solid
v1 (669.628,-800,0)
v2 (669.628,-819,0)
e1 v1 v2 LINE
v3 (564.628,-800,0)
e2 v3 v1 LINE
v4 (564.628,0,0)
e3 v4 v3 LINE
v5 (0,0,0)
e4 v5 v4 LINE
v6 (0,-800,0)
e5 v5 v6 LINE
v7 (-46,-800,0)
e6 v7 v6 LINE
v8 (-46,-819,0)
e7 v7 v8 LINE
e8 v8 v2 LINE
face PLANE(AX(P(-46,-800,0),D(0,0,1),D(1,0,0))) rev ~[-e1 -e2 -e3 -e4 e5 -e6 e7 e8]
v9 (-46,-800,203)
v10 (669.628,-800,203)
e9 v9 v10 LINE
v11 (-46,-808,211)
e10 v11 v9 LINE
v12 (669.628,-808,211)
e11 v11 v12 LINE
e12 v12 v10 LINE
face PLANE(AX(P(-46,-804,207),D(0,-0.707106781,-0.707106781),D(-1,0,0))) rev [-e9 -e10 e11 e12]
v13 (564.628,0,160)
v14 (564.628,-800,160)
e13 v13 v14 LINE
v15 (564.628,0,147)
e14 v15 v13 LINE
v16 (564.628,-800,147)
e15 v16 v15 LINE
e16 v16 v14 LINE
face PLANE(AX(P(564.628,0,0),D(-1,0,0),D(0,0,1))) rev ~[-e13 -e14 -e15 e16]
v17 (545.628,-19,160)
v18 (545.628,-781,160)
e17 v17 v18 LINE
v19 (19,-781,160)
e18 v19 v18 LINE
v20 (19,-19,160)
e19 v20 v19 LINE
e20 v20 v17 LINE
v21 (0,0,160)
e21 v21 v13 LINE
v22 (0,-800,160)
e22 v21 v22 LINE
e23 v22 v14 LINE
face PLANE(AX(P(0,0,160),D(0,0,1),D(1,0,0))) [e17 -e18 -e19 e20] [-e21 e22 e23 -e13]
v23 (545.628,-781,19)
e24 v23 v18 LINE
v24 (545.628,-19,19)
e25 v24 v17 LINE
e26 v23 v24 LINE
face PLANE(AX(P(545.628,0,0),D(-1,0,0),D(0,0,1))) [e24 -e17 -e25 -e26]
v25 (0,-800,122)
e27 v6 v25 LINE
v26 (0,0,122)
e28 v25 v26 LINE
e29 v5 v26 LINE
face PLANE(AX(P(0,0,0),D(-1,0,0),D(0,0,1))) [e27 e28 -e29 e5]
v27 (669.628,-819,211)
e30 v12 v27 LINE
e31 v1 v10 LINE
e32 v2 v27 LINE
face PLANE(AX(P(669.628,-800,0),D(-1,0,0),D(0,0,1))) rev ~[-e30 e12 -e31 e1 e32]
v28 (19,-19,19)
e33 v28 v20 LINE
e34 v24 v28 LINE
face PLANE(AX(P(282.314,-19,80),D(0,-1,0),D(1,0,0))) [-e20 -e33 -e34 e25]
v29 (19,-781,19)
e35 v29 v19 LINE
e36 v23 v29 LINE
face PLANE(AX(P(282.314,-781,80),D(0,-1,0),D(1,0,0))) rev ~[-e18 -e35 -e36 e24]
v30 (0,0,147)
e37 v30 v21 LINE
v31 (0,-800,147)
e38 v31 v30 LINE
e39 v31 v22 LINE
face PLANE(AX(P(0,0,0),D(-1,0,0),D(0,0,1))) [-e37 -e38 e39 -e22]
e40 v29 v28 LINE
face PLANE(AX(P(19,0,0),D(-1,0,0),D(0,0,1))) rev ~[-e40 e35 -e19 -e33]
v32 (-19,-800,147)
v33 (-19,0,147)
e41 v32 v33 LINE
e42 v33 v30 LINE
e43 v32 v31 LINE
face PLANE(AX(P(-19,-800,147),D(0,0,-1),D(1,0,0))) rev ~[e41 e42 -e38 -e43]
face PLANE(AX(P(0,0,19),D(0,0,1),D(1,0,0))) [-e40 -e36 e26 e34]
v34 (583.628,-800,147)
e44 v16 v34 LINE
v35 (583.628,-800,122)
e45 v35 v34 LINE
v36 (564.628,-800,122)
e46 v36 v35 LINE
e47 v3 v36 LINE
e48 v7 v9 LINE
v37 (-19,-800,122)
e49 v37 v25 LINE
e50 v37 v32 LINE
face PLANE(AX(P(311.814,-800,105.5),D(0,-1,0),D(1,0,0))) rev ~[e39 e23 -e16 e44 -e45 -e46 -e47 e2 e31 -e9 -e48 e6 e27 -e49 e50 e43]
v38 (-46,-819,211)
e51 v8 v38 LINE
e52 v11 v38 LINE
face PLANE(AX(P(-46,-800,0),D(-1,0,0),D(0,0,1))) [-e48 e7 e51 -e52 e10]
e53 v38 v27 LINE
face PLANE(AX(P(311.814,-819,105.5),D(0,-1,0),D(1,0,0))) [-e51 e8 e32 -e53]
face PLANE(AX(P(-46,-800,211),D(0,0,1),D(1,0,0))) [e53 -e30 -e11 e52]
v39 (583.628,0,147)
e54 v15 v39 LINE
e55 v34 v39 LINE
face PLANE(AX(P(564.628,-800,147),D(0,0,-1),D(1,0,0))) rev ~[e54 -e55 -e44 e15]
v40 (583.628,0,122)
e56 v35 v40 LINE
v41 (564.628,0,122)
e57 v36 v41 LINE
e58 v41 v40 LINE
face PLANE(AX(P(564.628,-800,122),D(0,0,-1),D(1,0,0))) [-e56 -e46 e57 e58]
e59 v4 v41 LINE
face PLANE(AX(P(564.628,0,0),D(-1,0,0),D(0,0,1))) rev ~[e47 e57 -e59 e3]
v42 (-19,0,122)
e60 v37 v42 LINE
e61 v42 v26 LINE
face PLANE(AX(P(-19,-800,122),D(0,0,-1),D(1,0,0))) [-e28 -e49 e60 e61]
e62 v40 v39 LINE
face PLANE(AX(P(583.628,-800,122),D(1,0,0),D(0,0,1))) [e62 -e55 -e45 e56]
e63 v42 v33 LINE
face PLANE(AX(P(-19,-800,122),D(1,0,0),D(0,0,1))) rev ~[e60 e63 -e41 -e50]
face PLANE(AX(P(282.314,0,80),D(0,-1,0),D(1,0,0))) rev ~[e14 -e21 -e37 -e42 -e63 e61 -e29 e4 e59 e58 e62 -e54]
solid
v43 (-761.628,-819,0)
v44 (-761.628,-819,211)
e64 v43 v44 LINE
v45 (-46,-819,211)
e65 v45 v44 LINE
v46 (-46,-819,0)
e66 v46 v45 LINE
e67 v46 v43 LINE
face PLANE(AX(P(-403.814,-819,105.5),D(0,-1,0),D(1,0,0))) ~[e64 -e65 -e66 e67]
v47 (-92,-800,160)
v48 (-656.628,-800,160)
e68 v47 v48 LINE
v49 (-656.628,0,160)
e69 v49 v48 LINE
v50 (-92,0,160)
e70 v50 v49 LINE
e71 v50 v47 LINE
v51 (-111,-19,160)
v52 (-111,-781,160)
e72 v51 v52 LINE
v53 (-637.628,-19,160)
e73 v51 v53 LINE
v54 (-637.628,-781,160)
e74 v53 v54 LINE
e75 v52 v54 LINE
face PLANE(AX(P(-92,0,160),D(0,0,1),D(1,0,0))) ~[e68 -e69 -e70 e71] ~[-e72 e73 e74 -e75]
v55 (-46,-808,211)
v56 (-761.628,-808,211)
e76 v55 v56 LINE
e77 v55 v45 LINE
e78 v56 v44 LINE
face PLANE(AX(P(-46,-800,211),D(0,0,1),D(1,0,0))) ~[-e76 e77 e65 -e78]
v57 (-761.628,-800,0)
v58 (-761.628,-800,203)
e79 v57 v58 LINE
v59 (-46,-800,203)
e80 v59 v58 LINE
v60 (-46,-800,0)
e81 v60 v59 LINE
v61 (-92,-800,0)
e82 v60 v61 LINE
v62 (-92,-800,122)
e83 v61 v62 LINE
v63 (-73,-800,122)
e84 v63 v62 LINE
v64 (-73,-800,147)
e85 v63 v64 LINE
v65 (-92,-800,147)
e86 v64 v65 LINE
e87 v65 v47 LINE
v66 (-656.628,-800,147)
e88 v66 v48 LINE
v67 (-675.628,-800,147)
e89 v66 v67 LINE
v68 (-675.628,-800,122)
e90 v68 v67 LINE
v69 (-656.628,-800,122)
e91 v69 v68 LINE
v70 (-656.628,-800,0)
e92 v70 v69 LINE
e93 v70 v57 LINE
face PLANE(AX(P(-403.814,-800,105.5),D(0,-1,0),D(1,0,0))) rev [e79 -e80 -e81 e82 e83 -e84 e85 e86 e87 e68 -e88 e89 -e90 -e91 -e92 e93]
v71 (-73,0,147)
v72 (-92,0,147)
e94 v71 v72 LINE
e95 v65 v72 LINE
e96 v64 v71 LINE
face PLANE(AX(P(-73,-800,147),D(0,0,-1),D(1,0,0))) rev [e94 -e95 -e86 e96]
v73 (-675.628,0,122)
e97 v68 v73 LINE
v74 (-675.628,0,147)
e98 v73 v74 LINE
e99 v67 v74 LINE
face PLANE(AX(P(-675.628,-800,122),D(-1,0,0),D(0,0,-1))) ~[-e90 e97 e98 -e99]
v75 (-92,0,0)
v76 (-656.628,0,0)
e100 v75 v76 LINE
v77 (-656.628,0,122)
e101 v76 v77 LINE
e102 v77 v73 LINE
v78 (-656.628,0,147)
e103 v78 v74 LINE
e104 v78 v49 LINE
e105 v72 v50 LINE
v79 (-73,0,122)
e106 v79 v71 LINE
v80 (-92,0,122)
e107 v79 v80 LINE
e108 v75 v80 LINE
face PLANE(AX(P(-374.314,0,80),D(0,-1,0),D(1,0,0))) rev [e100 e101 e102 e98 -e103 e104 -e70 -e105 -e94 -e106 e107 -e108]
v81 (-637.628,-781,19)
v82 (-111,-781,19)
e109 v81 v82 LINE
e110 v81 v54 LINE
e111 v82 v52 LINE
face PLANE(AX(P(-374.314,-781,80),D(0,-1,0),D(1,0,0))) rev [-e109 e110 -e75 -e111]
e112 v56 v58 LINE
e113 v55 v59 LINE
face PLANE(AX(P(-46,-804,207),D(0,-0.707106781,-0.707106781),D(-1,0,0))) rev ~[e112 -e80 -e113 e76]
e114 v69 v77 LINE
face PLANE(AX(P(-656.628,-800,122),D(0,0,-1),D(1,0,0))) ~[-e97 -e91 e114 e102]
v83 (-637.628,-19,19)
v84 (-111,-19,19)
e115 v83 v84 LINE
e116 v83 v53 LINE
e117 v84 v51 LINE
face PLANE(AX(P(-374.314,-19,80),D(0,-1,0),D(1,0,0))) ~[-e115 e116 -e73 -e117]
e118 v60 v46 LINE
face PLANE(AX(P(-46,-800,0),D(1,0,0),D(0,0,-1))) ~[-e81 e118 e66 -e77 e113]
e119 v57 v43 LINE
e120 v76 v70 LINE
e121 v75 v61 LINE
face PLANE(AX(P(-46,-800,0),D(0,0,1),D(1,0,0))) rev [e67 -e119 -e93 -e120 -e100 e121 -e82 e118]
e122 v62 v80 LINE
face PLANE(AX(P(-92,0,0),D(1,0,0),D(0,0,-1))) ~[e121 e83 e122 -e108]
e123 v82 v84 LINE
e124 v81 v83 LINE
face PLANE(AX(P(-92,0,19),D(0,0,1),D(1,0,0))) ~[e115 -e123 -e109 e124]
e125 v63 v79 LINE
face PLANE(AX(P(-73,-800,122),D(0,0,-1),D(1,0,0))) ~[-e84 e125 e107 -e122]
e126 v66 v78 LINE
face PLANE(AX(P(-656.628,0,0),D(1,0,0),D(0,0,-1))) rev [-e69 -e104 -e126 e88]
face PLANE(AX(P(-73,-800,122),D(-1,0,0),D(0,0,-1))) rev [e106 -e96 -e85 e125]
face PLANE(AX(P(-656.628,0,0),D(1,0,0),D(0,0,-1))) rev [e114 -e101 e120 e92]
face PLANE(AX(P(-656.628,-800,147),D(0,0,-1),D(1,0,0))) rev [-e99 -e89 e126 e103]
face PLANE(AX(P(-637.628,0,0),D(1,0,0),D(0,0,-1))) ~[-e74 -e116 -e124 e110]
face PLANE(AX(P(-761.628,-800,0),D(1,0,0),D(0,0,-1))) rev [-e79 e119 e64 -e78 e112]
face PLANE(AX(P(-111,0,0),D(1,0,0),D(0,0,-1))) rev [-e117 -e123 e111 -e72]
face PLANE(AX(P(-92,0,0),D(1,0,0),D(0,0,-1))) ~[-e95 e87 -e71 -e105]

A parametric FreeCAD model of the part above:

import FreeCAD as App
import Part
import Sketcher
Q = App.Units.Quantity


def edges_at(feature, points):
    """Names of the edges that pass closest to the given points."""
    edges = feature.Shape.Edges
    near = lambda p: min(range(len(edges)), key=lambda i: edges[i].distToShape(Part.Vertex(*p))[0])
    return sorted({f"Edge{near(p) + 1}" for p in points})


def faces_at(feature, points):
    """Names of the faces that lie closest to the given points."""
    faces = feature.Shape.Faces
    near = lambda p: min(range(len(faces)), key=lambda i: faces[i].distToShape(Part.Vertex(*p))[0])
    return sorted({f"Face{near(p) + 1}" for p in points})

doc = App.newDocument("Part")
params = doc.addObject("Spreadsheet::Sheet", "Params")
for row, (alias, value) in enumerate([
    ("sketch1_height", "160 mm"),
    ("pad1_length", "800 mm"),
    ("thickness_wall", "19 mm"),
    ("sketch2_width", "19 mm"),
    ("sketch2_height", "25 mm"),
    ("pad2_length", "800 mm"),
    ("sketch3_height", "211 mm"),
    ("pad3_length", "19 mm"),
    ("chamfer_size", "8 mm"),
], start=1):
    params.set(f"A{row}", alias)
    params.set(f"B{row}", "=" + value)
    params.setAlias(f"B{row}", alias)

body = doc.addObject("PartDesign::Body", "Body")

sketch1 = body.newObject("Sketcher::SketchObject", "Sketch")
sketch1.AttachmentSupport = (doc.getObject("XZ_Plane"), [""])
sketch1.MapMode = "FlatFace"
sketch1.addGeometry([
    Part.LineSegment(App.Vector(0, 160, 0), App.Vector(0, 0, 0)),
    Part.LineSegment(App.Vector(0, 0, 0), App.Vector(565, 0, 0)),
    Part.LineSegment(App.Vector(565, 0, 0), App.Vector(565, 160, 0)),
    Part.LineSegment(App.Vector(565, 160, 0), App.Vector(0, 160, 0)),
], False)
sketch1.addConstraint([
    Sketcher.Constraint("Coincident", 0, 2, 1, 1),
    Sketcher.Constraint("Coincident", 1, 2, 2, 1),
    Sketcher.Constraint("Coincident", 2, 2, 3, 1),
    Sketcher.Constraint("Coincident", 3, 2, 0, 1),
    Sketcher.Constraint("Vertical", 0),
    Sketcher.Constraint("Horizontal", 1),
    Sketcher.Constraint("Vertical", 2),
    Sketcher.Constraint("Horizontal", 3),
    Sketcher.Constraint("Coincident", 0, 2, -1, 1),
    Sketcher.Constraint("DistanceY", 0, 2, 0, 1, Q("160 mm")),
    Sketcher.Constraint("DistanceX", 1, 1, 1, 2, Q("564.628 mm")),
])
sketch1.setExpression("Constraints[9]", "Params.sketch1_height")
pad1 = body.newObject("PartDesign::Pad", "Pad")
pad1.Profile = sketch1
pad1.setExpression("Length", "Params.pad1_length")
doc.recompute()

thickness = body.newObject("PartDesign::Thickness", "Thickness")
thickness.Base = (pad1, faces_at(pad1, [(282.314, -400, 160)]))
thickness.setExpression("Value", "Params.thickness_wall")
thickness.Reversed = True
thickness.Join = "Arc"
body2 = doc.addObject("PartDesign::Body", "Body001")
body2.AllowCompound = True

sketch2 = body2.newObject("Sketcher::SketchObject", "Sketch001")
sketch2.AttachmentSupport = (doc.getObject("XZ_Plane001"), [""])
sketch2.MapMode = "FlatFace"
sketch2.AttachmentOffset = App.Placement(App.Vector(0, 0, 800), App.Rotation())
sketch2.addGeometry([
    Part.LineSegment(App.Vector(-19, 147, 0), App.Vector(-19, 122, 0)),
    Part.LineSegment(App.Vector(-19, 122, 0), App.Vector(0, 122, 0)),
    Part.LineSegment(App.Vector(0, 122, 0), App.Vector(0, 147, 0)),
    Part.LineSegment(App.Vector(0, 147, 0), App.Vector(-19, 147, 0)),
    Part.LineSegment(App.Vector(565, 147, 0), App.Vector(565, 122, 0)),
    Part.LineSegment(App.Vector(565, 122, 0), App.Vector(584, 122, 0)),
    Part.LineSegment(App.Vector(584, 122, 0), App.Vector(584, 147, 0)),
    Part.LineSegment(App.Vector(584, 147, 0), App.Vector(565, 147, 0)),
], False)
sketch2.addConstraint([
    Sketcher.Constraint("Coincident", 0, 2, 1, 1),
    Sketcher.Constraint("Coincident", 1, 2, 2, 1),
    Sketcher.Constraint("Coincident", 2, 2, 3, 1),
    Sketcher.Constraint("Coincident", 3, 2, 0, 1),
    Sketcher.Constraint("Coincident", 4, 2, 5, 1),
    Sketcher.Constraint("Coincident", 5, 2, 6, 1),
    Sketcher.Constraint("Coincident", 6, 2, 7, 1),
    Sketcher.Constraint("Coincident", 7, 2, 4, 1),
    Sketcher.Constraint("Vertical", 0),
    Sketcher.Constraint("Horizontal", 1),
    Sketcher.Constraint("Vertical", 2),
    Sketcher.Constraint("Horizontal", 3),
    Sketcher.Constraint("Vertical", 4),
    Sketcher.Constraint("Horizontal", 5),
    Sketcher.Constraint("Vertical", 6),
    Sketcher.Constraint("Horizontal", 7),
    Sketcher.Constraint("PointOnObject", 1, 2, -2),
    Sketcher.Constraint("Horizontal", 1, 2, 4, 2),
    Sketcher.Constraint("Horizontal", 3, 2, 6, 2),
    Sketcher.Constraint("Equal", 3, 5),
    Sketcher.Constraint("DistanceX", 1, 1, 1, 2, Q("19 mm")),
    Sketcher.Constraint("DistanceY", 0, 2, 0, 1, Q("25 mm")),
    Sketcher.Constraint("DistanceY", -1, 1, 0, 2, Q("122 mm")),
    Sketcher.Constraint("DistanceX", -1, 1, 4, 2, Q("564.628 mm")),
])
sketch2.setExpression("Constraints[20]", "Params.sketch2_width")
sketch2.setExpression("Constraints[21]", "Params.sketch2_height")
pad2 = body2.newObject("PartDesign::Pad", "Pad001")
pad2.Profile = sketch2
pad2.setExpression("Length", "Params.pad2_length")
pad2.Reversed = True
doc.recompute()

boolean = body.newObject("PartDesign::Boolean", "Boolean")
boolean.Type = "Fuse"
boolean.addObjects([body2])

sketch3 = body.newObject("Sketcher::SketchObject", "Sketch002")
sketch3.AttachmentSupport = (doc.getObject("XZ_Plane"), [""])
sketch3.MapMode = "FlatFace"
sketch3.AttachmentOffset = App.Placement(App.Vector(0, 0, 800), App.Rotation())
sketch3.addGeometry([
    Part.LineSegment(App.Vector(-46, 211, 0), App.Vector(-46, 0, 0)),
    Part.LineSegment(App.Vector(-46, 0, 0), App.Vector(670, 0, 0)),
    Part.LineSegment(App.Vector(670, 0, 0), App.Vector(670, 211, 0)),
    Part.LineSegment(App.Vector(670, 211, 0), App.Vector(-46, 211, 0)),
], False)
sketch3.addConstraint([
    Sketcher.Constraint("Coincident", 0, 2, 1, 1),
    Sketcher.Constraint("Coincident", 1, 2, 2, 1),
    Sketcher.Constraint("Coincident", 2, 2, 3, 1),
    Sketcher.Constraint("Coincident", 3, 2, 0, 1),
    Sketcher.Constraint("Vertical", 0),
    Sketcher.Constraint("Horizontal", 1),
    Sketcher.Constraint("Vertical", 2),
    Sketcher.Constraint("Horizontal", 3),
    Sketcher.Constraint("PointOnObject", 0, 2, -1),
    Sketcher.Constraint("DistanceY", 0, 2, 0, 1, Q("211 mm")),
    Sketcher.Constraint("DistanceX", 0, 2, -1, 1, Q("46 mm")),
    Sketcher.Constraint("DistanceX", 1, 1, 1, 2, Q("715.628 mm")),
])
sketch3.setExpression("Constraints[9]", "Params.sketch3_height")
pad3 = body.newObject("PartDesign::Pad", "Pad002")
pad3.Profile = sketch3
pad3.setExpression("Length", "Params.pad3_length")
doc.recompute()

chamfer = body.newObject("PartDesign::Chamfer", "Chamfer")
chamfer.Base = (pad3, edges_at(pad3, [(311.814, -800, 211)]))
chamfer.setExpression("Size", "Params.chamfer_size")
body3 = doc.addObject("PartDesign::Body", "Body002")
doc.recompute()

mirroring = doc.addObject("Part::Mirroring", "Mirroring")
mirroring.Source = body
mirroring.Base = App.Vector(-46, -809.554983, 104.672576)
mirroring.Normal = App.Vector(-1, 0, 0)
body3.BaseFeature = mirroring
doc.recompute()
mirroring.Visibility = False

doc.recompute()
